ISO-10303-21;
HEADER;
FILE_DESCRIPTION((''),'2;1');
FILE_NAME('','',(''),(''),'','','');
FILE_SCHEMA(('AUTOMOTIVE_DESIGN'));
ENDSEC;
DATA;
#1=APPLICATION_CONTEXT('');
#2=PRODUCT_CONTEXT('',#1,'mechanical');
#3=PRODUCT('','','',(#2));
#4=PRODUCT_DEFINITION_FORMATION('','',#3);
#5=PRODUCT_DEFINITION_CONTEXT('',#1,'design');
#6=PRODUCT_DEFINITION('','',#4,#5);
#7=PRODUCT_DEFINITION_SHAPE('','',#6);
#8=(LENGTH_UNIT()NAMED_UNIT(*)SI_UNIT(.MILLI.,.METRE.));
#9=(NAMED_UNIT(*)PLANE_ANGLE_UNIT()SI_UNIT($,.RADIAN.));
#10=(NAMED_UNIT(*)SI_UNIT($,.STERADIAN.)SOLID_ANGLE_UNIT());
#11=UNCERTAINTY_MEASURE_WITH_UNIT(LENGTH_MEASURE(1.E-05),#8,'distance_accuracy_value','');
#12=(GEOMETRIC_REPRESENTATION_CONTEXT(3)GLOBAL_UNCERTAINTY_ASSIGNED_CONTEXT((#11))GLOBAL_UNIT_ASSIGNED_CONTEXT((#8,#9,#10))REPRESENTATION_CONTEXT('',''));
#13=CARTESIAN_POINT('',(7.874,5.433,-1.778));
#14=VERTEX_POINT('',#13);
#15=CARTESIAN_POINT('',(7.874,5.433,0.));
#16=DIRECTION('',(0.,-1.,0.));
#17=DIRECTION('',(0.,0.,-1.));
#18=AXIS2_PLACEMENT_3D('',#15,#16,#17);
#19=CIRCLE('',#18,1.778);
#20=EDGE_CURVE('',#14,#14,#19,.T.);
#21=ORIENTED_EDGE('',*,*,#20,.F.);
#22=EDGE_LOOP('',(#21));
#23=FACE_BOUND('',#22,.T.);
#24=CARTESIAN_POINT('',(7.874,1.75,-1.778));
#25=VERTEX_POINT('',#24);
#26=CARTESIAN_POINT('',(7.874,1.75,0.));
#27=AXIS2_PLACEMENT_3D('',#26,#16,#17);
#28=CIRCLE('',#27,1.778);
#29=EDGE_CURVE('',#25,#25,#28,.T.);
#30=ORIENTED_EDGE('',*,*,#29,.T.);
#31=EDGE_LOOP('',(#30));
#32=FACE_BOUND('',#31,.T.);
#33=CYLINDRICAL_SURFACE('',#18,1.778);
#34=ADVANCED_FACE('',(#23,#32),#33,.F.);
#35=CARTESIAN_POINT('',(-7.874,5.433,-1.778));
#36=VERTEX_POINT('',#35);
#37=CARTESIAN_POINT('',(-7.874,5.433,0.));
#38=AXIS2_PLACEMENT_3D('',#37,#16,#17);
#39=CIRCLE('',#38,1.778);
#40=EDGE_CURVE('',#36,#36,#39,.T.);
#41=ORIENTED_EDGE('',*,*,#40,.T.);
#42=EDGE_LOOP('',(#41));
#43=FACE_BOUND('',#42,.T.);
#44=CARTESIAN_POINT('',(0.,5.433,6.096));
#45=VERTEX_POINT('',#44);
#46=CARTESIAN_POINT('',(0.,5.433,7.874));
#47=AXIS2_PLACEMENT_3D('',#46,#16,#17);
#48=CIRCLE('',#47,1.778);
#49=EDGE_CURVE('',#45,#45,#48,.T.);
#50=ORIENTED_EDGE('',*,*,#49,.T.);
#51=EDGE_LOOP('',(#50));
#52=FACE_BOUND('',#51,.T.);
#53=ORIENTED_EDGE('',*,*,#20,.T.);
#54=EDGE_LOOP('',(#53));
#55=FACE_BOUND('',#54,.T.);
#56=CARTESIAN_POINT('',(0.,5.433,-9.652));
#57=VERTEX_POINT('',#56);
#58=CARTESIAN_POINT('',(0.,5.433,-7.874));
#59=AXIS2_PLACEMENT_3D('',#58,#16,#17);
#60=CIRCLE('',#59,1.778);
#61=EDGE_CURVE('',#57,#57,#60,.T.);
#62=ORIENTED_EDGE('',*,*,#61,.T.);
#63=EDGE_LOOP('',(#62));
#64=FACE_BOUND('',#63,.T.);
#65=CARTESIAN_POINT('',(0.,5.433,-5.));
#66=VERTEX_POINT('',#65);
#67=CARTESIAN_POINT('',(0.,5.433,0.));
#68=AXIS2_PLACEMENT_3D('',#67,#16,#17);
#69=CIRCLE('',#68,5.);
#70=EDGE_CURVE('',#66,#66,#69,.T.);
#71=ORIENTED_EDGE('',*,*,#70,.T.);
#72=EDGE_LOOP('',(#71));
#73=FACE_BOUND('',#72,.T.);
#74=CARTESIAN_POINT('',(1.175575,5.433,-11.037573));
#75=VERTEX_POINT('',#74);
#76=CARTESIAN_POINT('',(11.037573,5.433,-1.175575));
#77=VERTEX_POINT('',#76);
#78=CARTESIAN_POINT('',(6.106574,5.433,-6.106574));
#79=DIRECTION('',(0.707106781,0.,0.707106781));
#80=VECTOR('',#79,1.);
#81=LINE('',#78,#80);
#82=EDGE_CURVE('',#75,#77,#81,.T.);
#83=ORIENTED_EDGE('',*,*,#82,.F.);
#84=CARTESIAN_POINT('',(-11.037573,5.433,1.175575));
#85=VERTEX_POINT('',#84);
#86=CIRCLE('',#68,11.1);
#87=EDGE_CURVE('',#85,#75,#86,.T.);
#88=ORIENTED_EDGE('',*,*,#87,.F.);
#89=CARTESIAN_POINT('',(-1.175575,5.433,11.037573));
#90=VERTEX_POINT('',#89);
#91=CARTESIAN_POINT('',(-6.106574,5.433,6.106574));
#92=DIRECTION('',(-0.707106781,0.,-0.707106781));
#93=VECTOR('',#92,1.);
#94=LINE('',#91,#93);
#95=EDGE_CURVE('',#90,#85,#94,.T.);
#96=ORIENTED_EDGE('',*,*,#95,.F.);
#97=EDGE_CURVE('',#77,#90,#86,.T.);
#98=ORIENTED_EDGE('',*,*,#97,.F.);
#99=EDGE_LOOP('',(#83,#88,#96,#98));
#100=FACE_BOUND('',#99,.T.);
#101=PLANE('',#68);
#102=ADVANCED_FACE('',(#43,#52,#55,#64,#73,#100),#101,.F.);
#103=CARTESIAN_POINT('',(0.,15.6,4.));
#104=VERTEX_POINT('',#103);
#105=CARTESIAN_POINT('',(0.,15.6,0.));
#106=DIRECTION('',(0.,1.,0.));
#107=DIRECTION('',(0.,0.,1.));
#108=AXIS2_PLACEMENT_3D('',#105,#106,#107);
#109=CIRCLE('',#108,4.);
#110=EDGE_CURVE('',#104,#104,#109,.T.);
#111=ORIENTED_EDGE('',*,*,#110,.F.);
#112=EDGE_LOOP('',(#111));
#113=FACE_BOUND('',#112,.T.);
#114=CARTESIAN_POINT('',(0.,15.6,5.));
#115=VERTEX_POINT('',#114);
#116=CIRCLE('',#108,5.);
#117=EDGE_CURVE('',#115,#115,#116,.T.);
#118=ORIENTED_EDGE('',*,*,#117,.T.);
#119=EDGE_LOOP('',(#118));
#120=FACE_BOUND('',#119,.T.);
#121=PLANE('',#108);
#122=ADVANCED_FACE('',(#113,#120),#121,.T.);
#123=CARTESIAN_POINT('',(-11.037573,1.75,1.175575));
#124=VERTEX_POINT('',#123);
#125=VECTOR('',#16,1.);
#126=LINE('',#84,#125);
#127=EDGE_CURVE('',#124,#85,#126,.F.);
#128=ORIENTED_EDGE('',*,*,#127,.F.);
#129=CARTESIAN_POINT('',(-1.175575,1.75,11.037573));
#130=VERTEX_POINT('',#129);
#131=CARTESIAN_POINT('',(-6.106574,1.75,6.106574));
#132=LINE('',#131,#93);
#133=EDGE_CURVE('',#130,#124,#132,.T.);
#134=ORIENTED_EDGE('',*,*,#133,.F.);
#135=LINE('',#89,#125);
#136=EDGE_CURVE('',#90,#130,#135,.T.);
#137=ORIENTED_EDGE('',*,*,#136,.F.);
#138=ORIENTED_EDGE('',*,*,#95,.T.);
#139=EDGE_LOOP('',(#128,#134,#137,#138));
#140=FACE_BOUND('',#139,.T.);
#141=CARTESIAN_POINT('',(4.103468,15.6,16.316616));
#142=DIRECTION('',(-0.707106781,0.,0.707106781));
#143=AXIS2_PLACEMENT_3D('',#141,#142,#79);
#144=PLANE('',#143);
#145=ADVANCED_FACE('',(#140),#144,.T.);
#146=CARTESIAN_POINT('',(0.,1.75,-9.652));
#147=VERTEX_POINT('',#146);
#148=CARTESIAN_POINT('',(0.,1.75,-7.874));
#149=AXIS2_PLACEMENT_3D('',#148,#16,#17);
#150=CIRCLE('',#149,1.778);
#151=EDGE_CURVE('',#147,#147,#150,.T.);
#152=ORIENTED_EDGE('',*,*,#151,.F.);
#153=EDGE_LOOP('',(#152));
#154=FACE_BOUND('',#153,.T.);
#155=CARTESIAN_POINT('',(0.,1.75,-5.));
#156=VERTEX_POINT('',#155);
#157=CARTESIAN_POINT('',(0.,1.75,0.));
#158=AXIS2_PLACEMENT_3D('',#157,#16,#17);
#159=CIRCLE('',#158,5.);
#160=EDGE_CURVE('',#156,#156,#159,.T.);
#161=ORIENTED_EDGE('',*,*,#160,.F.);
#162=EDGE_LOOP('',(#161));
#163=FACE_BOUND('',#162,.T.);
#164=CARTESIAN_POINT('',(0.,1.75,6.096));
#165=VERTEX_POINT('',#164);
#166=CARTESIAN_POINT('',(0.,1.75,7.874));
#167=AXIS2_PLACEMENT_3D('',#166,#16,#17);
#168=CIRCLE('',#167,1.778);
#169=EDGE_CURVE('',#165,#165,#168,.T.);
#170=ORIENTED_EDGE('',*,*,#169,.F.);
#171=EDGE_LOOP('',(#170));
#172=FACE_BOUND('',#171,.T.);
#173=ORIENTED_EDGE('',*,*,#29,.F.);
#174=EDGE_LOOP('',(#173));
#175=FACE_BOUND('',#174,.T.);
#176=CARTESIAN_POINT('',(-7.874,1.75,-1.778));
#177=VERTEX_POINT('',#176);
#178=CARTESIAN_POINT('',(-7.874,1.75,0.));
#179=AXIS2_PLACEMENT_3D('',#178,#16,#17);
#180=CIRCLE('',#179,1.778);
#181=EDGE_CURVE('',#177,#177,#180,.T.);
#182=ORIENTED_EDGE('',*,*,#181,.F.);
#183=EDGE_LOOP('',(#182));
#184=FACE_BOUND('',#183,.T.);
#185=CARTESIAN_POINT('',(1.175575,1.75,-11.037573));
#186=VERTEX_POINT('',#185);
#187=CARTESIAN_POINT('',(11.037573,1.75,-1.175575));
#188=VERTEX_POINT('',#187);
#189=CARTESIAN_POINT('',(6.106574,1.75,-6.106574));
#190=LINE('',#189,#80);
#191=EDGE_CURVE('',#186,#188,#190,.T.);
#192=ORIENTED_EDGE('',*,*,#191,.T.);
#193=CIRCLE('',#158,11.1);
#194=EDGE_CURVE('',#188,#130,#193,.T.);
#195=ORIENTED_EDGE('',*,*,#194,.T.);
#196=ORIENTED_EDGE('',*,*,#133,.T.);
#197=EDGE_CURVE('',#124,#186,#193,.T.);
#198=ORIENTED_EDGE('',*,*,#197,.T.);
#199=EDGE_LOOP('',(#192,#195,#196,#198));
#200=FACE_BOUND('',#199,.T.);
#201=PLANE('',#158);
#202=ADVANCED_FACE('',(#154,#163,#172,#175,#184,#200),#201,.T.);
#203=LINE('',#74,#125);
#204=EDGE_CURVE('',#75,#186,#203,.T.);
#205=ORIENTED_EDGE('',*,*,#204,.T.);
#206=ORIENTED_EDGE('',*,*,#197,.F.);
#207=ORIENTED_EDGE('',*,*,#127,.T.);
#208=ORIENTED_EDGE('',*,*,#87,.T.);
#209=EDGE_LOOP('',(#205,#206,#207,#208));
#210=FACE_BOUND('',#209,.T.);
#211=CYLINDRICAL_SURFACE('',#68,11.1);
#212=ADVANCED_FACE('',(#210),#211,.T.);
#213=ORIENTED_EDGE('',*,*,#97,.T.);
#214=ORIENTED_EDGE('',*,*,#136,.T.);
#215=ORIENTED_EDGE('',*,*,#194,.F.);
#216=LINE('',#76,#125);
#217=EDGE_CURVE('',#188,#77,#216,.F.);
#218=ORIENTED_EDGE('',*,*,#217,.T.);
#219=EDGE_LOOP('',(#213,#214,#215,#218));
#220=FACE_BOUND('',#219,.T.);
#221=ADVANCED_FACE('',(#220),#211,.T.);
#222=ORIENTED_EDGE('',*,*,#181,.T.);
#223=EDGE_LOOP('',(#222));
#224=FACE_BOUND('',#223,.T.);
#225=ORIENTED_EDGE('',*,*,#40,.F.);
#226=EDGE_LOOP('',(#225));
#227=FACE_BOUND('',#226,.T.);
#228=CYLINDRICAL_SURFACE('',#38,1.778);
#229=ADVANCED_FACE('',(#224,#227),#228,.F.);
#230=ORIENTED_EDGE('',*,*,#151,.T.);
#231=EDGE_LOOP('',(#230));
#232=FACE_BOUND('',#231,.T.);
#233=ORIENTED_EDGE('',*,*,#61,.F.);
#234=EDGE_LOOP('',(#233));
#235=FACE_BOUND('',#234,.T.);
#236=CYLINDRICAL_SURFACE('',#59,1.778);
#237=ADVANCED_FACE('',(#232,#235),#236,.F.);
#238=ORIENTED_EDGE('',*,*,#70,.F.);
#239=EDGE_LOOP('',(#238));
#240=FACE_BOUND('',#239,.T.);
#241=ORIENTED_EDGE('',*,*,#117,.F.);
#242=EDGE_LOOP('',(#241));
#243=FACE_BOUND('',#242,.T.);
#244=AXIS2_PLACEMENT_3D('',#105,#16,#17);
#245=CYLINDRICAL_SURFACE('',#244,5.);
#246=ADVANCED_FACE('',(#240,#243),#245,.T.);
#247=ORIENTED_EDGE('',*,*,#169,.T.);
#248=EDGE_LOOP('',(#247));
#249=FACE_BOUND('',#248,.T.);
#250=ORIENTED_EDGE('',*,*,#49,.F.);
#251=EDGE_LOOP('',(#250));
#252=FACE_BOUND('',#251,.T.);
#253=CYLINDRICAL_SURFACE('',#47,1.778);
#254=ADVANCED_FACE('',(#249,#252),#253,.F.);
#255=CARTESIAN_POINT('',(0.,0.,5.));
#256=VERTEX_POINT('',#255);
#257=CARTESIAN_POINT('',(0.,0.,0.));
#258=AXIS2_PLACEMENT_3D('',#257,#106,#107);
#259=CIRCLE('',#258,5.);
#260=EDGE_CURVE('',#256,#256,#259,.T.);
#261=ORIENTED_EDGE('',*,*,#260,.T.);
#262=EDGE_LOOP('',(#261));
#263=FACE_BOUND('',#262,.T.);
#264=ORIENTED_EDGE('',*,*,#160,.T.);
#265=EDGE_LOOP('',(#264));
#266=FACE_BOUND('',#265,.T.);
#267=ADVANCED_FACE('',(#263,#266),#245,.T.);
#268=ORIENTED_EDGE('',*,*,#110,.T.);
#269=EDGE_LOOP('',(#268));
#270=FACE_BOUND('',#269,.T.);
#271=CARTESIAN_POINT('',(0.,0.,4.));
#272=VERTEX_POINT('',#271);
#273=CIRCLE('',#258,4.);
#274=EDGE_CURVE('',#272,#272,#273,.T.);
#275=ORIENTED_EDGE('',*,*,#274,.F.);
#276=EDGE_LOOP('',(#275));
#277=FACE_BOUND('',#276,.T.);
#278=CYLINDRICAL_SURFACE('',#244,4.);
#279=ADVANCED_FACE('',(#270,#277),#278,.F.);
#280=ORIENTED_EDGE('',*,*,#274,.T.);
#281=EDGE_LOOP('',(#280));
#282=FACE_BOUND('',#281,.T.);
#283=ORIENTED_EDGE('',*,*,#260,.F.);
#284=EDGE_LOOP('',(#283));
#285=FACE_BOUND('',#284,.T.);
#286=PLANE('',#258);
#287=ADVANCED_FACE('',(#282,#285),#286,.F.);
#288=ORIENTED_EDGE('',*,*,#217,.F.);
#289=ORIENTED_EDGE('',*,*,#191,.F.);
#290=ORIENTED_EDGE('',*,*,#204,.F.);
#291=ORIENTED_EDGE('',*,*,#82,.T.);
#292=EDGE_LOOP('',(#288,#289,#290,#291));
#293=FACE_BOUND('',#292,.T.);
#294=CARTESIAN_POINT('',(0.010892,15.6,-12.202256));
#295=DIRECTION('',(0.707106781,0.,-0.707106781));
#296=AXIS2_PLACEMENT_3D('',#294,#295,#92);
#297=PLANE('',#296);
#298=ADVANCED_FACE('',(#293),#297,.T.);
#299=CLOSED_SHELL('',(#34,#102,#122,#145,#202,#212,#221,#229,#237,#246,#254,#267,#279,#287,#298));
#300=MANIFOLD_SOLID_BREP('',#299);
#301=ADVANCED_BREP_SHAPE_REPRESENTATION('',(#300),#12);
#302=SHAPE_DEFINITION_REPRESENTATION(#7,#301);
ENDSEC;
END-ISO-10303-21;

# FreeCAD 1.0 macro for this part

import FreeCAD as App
import Part
import Sketcher
from FreeCAD import Vector
Q = App.Units.Quantity


def add_polygon(sketch, points):
    """Adds a closed chain of lines whose ends are joined by coincident constraints."""
    first, n = sketch.GeometryCount, len(points)
    for a, b in zip(points, points[1:] + points[:1]):
        sketch.addGeometry(Part.LineSegment(App.Vector(*a, 0), App.Vector(*b, 0)), False)
    for i in range(n):
        sketch.addConstraint(Sketcher.Constraint("Coincident", first + i, 2, first + (i + 1) % n, 1))

doc = App.newDocument("Part")
body = doc.addObject("PartDesign::Body", "Body")

sketch1 = body.newObject("Sketcher::SketchObject", "Sketch")
sketch1.AttachmentSupport = (doc.getObject("XZ_Plane"), [""])
sketch1.MapMode = "FlatFace"
sketch1.addGeometry([
    Part.Circle(Vector(0, 0, 0), Vector(0, 0, 1), 5),
    Part.Circle(Vector(0, 0, 0), Vector(0, 0, 1), 4),
], False)
sketch1.addConstraint([
    Sketcher.Constraint("Coincident", 0, 3, -1, 1),
    Sketcher.Constraint("Coincident", 1, 3, -1, 1),
    Sketcher.Constraint("Diameter", 0, Q("10 mm")),
    Sketcher.Constraint("Diameter", 1, Q("8 mm")),
])
pad1 = body.newObject("PartDesign::Pad", "Pad")
pad1.Profile = sketch1
pad1.Length = 15.6
pad1.Reversed = True

sketch2 = body.newObject("Sketcher::SketchObject", "Sketch001")
sketch2.AttachmentSupport = (doc.getObject("XZ_Plane"), [""])
sketch2.MapMode = "FlatFace"
sketch2.AttachmentOffset = App.Placement(Vector(0, 0, -1.75), App.Rotation())
sketch2.addGeometry([
    Part.Circle(Vector(0, 0, 0), Vector(0, 0, 1), 11.1),
    Part.Circle(Vector(0, 7.9, 0), Vector(0, 0, 1), 1.8),
    Part.Circle(Vector(7.9, 0, 0), Vector(0, 0, 1), 1.8),
    Part.Circle(Vector(0, 0, 0), Vector(0, 0, 1), 5),
    Part.Circle(Vector(0, -7.9, 0), Vector(0, 0, 1), 1.8),
    Part.Circle(Vector(-7.9, 0, 0), Vector(0, 0, 1), 1.8),
], False)
sketch2.addConstraint([
    Sketcher.Constraint("Coincident", 0, 3, -1, 1),
    Sketcher.Constraint("Coincident", 3, 3, -1, 1),
    Sketcher.Constraint("Equal", 1, 2),
    Sketcher.Constraint("Equal", 2, 4),
    Sketcher.Constraint("Equal", 4, 5),
    Sketcher.Constraint("Symmetric", 1, 3, 4, 3, -1, 1),
    Sketcher.Constraint("Symmetric", 2, 3, 5, 3, -1, 1),
    Sketcher.Constraint("PointOnObject", 1, 3, -2),
    Sketcher.Constraint("PointOnObject", 2, 3, -1),
    Sketcher.Constraint("Diameter", 3, Q("10 mm")),
    Sketcher.Constraint("Diameter", 0, Q("22.2 mm")),
    Sketcher.Constraint("Diameter", 1, Q("3.556 mm")),
    Sketcher.Constraint("DistanceY", -1, 1, 1, 3, Q("7.874 mm")),
    Sketcher.Constraint("DistanceX", -1, 1, 2, 3, Q("7.874 mm")),
])
pad2 = body.newObject("PartDesign::Pad", "Pad001")
pad2.Profile = sketch2
pad2.Length = 3.683
pad2.Reversed = True

sketch3 = body.newObject("Sketcher::SketchObject", "Sketch002")
sketch3.AttachmentSupport = (doc.getObject("XZ_Plane"), [""])
sketch3.MapMode = "FlatFace"
sketch3.AttachmentOffset = App.Placement(Vector(0, 0, -1.75), App.Rotation())
add_polygon(sketch3, [(-15.6, -3.4), (-15.6, -15.6), (-3.4, -15.6)])
add_polygon(sketch3, [(-15.6, 15.6), (-15.6, -3.4), (3.4, 15.6)])
add_polygon(sketch3, [(0, -12.2), (-3.4, -15.6), (15.6, -15.6), (15.6, 3.4)])
add_polygon(sketch3, [(15.6, 15.6), (4.8, 15.6), (15.6, 4.8)])
sketch3.addConstraint([
    Sketcher.Constraint("Vertical", 0),
    Sketcher.Constraint("Horizontal", 1),
    Sketcher.Constraint("Vertical", 3),
    Sketcher.Constraint("Horizontal", 5),
    Sketcher.Constraint("Horizontal", 7),
    Sketcher.Constraint("Vertical", 8),
    Sketcher.Constraint("Horizontal", 10),
    Sketcher.Constraint("Vertical", 12),
    Sketcher.Constraint("Symmetric", 4, 2, 6, 2, -1, 1),
    Sketcher.Constraint("Symmetric", 3, 2, 8, 2, -1, 1),
    Sketcher.Constraint("Symmetric", 0, 2, 12, 2, -1, 1),
    Sketcher.Constraint("Symmetric", 0, 2, 7, 2, -2),
    Sketcher.Constraint("Perpendicular", 2, 4),
    Sketcher.Constraint("Parallel", 4, 6),
    Sketcher.Constraint("Perpendicular", 9, 11),
    Sketcher.Constraint("Equal", 1, 0),
    Sketcher.Constraint("DistanceX", 0, 2, -1, 1, Q("15.606 mm")),
    Sketcher.Constraint("DistanceY", 0, 2, -1, 1, Q("15.606 mm")),
    Sketcher.Constraint("DistanceX", 5, 2, 5, 1, Q("18.998852 mm")),
    Sketcher.Constraint("Distance", 2, Q("17.271839 mm")),
    Sketcher.Constraint("Distance", 6, Q("4.813621 mm")),
    Sketcher.Constraint("DistanceX", 10, 2, 10, 1, Q("10.791917 mm")),
])
pocket1 = body.newObject("PartDesign::Pocket", "Pocket")
pocket1.Profile = sketch3
pocket1.Type = "ThroughAll"

doc.recompute()
